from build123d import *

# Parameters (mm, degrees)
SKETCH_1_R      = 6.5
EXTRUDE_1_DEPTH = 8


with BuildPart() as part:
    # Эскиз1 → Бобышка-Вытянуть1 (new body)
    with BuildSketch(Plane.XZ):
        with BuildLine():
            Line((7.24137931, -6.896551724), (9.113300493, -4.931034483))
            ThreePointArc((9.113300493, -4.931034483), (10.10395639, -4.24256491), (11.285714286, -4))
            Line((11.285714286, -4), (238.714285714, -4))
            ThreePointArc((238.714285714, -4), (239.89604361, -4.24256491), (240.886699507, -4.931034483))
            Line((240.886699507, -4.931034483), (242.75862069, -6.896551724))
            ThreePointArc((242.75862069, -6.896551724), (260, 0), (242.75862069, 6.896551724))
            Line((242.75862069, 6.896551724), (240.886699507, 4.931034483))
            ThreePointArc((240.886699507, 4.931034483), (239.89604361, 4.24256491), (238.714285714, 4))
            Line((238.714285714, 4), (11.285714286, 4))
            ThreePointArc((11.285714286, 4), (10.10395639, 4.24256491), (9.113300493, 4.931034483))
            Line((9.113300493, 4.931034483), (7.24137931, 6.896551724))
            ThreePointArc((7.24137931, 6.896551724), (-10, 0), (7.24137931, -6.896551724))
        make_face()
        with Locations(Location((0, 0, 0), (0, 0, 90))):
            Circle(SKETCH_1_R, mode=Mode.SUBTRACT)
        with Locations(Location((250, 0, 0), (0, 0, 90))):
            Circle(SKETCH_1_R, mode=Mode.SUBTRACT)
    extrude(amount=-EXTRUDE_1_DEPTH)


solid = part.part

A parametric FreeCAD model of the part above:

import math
import FreeCAD as App
import Part
import Sketcher

doc = App.newDocument("Part")
body = doc.addObject("PartDesign::Body", "Body")

sketch1 = body.newObject("Sketcher::SketchObject", "Sketch")
sketch1.AttachmentSupport = (doc.getObject("XZ_Plane"), [""])
sketch1.MapMode = "FlatFace"
sketch1.addGeometry([
    Part.LineSegment(App.Vector(7.241379, -6.896552, 0), App.Vector(9.1133, -4.931034, 0)),
    Part.ArcOfCircle(Part.Circle(App.Vector(11.285714, -7, 0), App.Vector(0, 0, 1), 3), math.radians(90), math.radians(136.397181)),
    Part.LineSegment(App.Vector(11.285714, -4, 0), App.Vector(238.714286, -4, 0)),
    Part.ArcOfCircle(Part.Circle(App.Vector(238.714286, -7, 0), App.Vector(0, 0, 1), 3), math.radians(43.602819), math.radians(90)),
    Part.LineSegment(App.Vector(240.8867, -4.931034, 0), App.Vector(242.758621, -6.896552, 0)),
    Part.ArcOfCircle(Part.Circle(App.Vector(250, 0, 0), App.Vector(0, 0, 1), 10), math.radians(-136.397181), math.radians(136.397181)),
    Part.LineSegment(App.Vector(242.758621, 6.896552, 0), App.Vector(240.8867, 4.931034, 0)),
    Part.ArcOfCircle(Part.Circle(App.Vector(238.714286, 7, 0), App.Vector(0, 0, 1), 3), math.radians(-90), math.radians(-43.602819)),
    Part.LineSegment(App.Vector(238.714286, 4, 0), App.Vector(11.285714, 4, 0)),
    Part.ArcOfCircle(Part.Circle(App.Vector(11.285714, 7, 0), App.Vector(0, 0, 1), 3), math.radians(-136.397181), math.radians(-90)),
    Part.LineSegment(App.Vector(9.1133, 4.931034, 0), App.Vector(7.241379, 6.896552, 0)),
    Part.ArcOfCircle(Part.Circle(App.Vector(0, 0, 0), App.Vector(0, 0, 1), 10), math.radians(43.602819), math.radians(316.397181)),
    Part.Circle(App.Vector(0, 0, 0), App.Vector(0, 0, 1), 6.5),
    Part.Circle(App.Vector(250, 0, 0), App.Vector(0, 0, 1), 6.5),
], False)
sketch1.addConstraint([
    Sketcher.Constraint("Tangent", 0, 2, 1, 2),
    Sketcher.Constraint("Tangent", 1, 1, 2, 1),
    Sketcher.Constraint("Tangent", 2, 2, 3, 2),
    Sketcher.Constraint("Tangent", 3, 1, 4, 1),
    Sketcher.Constraint("Tangent", 4, 2, 5, 1),
    Sketcher.Constraint("Tangent", 5, 2, 6, 1),
    Sketcher.Constraint("Tangent", 6, 2, 7, 2),
    Sketcher.Constraint("Tangent", 7, 1, 8, 1),
    Sketcher.Constraint("Tangent", 8, 2, 9, 2),
    Sketcher.Constraint("Tangent", 9, 1, 10, 1),
    Sketcher.Constraint("Tangent", 10, 2, 11, 1),
    Sketcher.Constraint("Tangent", 11, 2, 0, 1),
    Sketcher.Constraint("Horizontal", 2),
    Sketcher.Constraint("Horizontal", 8),
    Sketcher.Constraint("Coincident", 11, 3, -1, 1),
    Sketcher.Constraint("Coincident", 12, 3, -1, 1),
    Sketcher.Constraint("Coincident", 13, 3, 5, 3),
    Sketcher.Constraint("Equal", 1, 3),
    Sketcher.Constraint("Equal", 3, 7),
    Sketcher.Constraint("Equal", 7, 9),
    Sketcher.Constraint("Equal", 5, 11),
    Sketcher.Constraint("Equal", 12, 13),
    Sketcher.Constraint("Symmetric", 3, 3, 7, 3, -1),
    Sketcher.Constraint("PointOnObject", 5, 3, -1),
    Sketcher.Constraint("Parallel", 0, 6),
    Sketcher.Constraint("Parallel", 4, 10),
    Sketcher.Constraint("Diameter", 12, 13.0),
    Sketcher.Constraint("Radius", 1, 3.0),
    Sketcher.Constraint("Radius", 5, 10.0),
    Sketcher.Constraint("DistanceY", 1, 3, -1, 1, 7.0),
    Sketcher.Constraint("DistanceX", -1, 1, 5, 3, 250.0),
    Sketcher.Constraint("DistanceX", 2, 1, 2, 2, 227.428571),
])
pad1 = body.newObject("PartDesign::Pad", "Pad")
pad1.Profile = sketch1
pad1.Length = 8
pad1.Reversed = True

doc.recompute()
